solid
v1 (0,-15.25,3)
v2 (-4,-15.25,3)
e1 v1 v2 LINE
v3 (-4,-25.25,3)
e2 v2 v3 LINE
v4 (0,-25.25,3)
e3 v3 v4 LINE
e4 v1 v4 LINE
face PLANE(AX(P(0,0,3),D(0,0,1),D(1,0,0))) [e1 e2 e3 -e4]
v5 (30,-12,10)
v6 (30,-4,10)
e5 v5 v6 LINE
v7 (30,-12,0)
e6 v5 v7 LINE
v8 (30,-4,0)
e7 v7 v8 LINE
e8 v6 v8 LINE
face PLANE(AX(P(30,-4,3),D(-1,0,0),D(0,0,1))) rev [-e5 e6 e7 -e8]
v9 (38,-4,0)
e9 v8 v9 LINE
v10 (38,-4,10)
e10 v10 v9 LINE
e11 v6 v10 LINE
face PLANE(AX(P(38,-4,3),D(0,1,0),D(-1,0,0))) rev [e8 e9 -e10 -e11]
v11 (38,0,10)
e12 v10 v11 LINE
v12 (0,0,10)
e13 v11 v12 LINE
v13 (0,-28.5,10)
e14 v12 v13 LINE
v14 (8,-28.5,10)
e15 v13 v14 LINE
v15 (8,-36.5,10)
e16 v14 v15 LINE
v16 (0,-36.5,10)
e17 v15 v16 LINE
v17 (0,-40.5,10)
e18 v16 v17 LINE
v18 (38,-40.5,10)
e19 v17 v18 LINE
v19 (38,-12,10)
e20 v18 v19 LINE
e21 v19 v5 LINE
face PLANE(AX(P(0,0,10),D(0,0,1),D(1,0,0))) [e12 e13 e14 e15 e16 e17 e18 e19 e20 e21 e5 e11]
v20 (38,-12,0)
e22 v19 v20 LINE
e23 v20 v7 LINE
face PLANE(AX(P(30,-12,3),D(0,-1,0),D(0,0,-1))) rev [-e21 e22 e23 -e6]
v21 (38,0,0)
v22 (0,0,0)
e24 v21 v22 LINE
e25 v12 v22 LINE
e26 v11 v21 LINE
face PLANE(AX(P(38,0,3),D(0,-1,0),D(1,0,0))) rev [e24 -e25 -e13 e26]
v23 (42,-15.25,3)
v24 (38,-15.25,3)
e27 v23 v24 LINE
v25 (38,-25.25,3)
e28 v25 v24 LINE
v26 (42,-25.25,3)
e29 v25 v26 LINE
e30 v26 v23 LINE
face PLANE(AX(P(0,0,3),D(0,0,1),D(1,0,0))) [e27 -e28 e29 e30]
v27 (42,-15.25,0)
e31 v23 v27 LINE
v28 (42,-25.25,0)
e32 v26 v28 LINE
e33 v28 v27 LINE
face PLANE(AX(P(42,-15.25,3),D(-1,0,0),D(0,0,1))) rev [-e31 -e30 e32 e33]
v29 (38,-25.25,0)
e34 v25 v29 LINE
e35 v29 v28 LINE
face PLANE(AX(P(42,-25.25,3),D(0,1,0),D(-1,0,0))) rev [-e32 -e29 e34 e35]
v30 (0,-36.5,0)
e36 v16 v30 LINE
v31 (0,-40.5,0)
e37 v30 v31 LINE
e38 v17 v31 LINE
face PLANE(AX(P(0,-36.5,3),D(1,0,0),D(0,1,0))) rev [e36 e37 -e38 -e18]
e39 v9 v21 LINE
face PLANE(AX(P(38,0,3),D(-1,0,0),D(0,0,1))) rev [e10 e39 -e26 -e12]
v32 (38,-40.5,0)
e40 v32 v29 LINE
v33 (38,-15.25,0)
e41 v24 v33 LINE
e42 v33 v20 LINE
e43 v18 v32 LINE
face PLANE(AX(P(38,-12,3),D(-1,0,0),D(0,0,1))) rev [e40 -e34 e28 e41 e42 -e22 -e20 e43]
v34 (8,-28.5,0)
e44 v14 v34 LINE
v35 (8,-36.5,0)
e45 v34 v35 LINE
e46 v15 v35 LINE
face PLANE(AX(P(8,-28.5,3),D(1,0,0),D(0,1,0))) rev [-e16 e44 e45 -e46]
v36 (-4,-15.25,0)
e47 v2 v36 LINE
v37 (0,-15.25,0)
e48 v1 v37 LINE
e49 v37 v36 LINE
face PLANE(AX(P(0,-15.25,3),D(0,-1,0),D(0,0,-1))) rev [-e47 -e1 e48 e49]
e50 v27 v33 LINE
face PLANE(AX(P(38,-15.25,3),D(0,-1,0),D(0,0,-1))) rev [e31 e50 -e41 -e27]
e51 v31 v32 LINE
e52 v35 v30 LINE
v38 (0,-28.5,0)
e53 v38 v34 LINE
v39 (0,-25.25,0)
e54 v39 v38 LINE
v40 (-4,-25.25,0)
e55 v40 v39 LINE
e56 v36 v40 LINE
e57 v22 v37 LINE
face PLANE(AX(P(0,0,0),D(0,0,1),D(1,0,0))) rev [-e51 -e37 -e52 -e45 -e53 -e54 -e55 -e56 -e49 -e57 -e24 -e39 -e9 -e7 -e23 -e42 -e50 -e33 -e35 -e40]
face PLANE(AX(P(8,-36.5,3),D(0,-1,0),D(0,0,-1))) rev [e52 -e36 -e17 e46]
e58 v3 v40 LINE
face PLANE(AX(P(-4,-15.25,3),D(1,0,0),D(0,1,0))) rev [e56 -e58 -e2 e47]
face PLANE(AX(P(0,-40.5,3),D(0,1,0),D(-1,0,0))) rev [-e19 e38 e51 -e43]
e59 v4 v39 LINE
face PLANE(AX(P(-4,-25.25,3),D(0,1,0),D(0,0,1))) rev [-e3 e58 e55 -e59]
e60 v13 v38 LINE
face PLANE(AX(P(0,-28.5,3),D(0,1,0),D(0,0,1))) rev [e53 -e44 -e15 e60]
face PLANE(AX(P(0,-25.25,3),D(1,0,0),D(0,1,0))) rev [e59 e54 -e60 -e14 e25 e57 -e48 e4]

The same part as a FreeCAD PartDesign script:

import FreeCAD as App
import Part
import Sketcher

V = App.Vector

doc = App.newDocument("Part")
body = doc.addObject("PartDesign::Body", "Body")

# Sketch on XY plane
sketch1 = body.newObject("Sketcher::SketchObject", "Sketch")
sketch1.AttachmentSupport = (doc.getObject("XY_Plane"), [""])
sketch1.MapMode = "FlatFace"
sketch1.addGeometry([
    Part.LineSegment(V(0, 0, 0), V(0, -15.2, 0)),  # 0
    Part.LineSegment(V(0, -15.2, 0), V(-4, -15.2, 0)),  # 1
    Part.LineSegment(V(-4, -15.2, 0), V(-4, -25.2, 0)),  # 2
    Part.LineSegment(V(-4, -25.2, 0), V(0, -25.2, 0)),  # 3
    Part.LineSegment(V(0, -25.2, 0), V(0, -28.5, 0)),  # 4
    Part.LineSegment(V(0, -28.5, 0), V(8, -28.5, 0)),  # 5
    Part.LineSegment(V(8, -28.5, 0), V(8, -36.5, 0)),  # 6
    Part.LineSegment(V(8, -36.5, 0), V(0, -36.5, 0)),  # 7
    Part.LineSegment(V(0, -36.5, 0), V(0, -40.5, 0)),  # 8
    Part.LineSegment(V(0, -40.5, 0), V(38, -40.5, 0)),  # 9
    Part.LineSegment(V(38, -40.5, 0), V(38, -25.2, 0)),  # 10
    Part.LineSegment(V(38, -25.2, 0), V(42, -25.2, 0)),  # 11
    Part.LineSegment(V(42, -25.2, 0), V(42, -15.2, 0)),  # 12
    Part.LineSegment(V(42, -15.2, 0), V(38, -15.2, 0)),  # 13
    Part.LineSegment(V(38, -15.2, 0), V(38, -12, 0)),  # 14
    Part.LineSegment(V(38, -12, 0), V(30, -12, 0)),  # 15
    Part.LineSegment(V(30, -12, 0), V(30, -4, 0)),  # 16
    Part.LineSegment(V(30, -4, 0), V(38, -4, 0)),  # 17
    Part.LineSegment(V(38, -4, 0), V(38, 0, 0)),  # 18
    Part.LineSegment(V(38, 0, 0), V(0, 0, 0)),  # 19
], False)
sketch1.addConstraint([
    Sketcher.Constraint("Coincident", 0, 2, 1, 1),
    Sketcher.Constraint("Coincident", 1, 2, 2, 1),
    Sketcher.Constraint("Coincident", 2, 2, 3, 1),
    Sketcher.Constraint("Coincident", 3, 2, 4, 1),
    Sketcher.Constraint("Coincident", 4, 2, 5, 1),
    Sketcher.Constraint("Coincident", 5, 2, 6, 1),
    Sketcher.Constraint("Coincident", 6, 2, 7, 1),
    Sketcher.Constraint("Coincident", 7, 2, 8, 1),
    Sketcher.Constraint("Coincident", 8, 2, 9, 1),
    Sketcher.Constraint("Coincident", 9, 2, 10, 1),
    Sketcher.Constraint("Coincident", 10, 2, 11, 1),
    Sketcher.Constraint("Coincident", 11, 2, 12, 1),
    Sketcher.Constraint("Coincident", 12, 2, 13, 1),
    Sketcher.Constraint("Coincident", 13, 2, 14, 1),
    Sketcher.Constraint("Coincident", 14, 2, 15, 1),
    Sketcher.Constraint("Coincident", 15, 2, 16, 1),
    Sketcher.Constraint("Coincident", 16, 2, 17, 1),
    Sketcher.Constraint("Coincident", 17, 2, 18, 1),
    Sketcher.Constraint("Coincident", 18, 2, 19, 1),
    Sketcher.Constraint("Coincident", 19, 2, 0, 1),
    Sketcher.Constraint("Vertical", 0),
    Sketcher.Constraint("Horizontal", 1),
    Sketcher.Constraint("Vertical", 2),
    Sketcher.Constraint("Horizontal", 3),
    Sketcher.Constraint("Vertical", 4),
    Sketcher.Constraint("Horizontal", 5),
    Sketcher.Constraint("Vertical", 6),
    Sketcher.Constraint("Horizontal", 7),
    Sketcher.Constraint("Vertical", 8),
    Sketcher.Constraint("Horizontal", 9),
    Sketcher.Constraint("Vertical", 10),
    Sketcher.Constraint("Horizontal", 11),
    Sketcher.Constraint("Vertical", 12),
    Sketcher.Constraint("Horizontal", 13),
    Sketcher.Constraint("Vertical", 14),
    Sketcher.Constraint("Horizontal", 15),
    Sketcher.Constraint("Vertical", 16),
    Sketcher.Constraint("Horizontal", 17),
    Sketcher.Constraint("Vertical", 18),
    Sketcher.Constraint("Horizontal", 19),
    Sketcher.Constraint("Coincident", 19, 2, -1, 1),
    Sketcher.Constraint("PointOnObject", 3, 2, -2),
    Sketcher.Constraint("PointOnObject", 7, 2, -2),
    Sketcher.Constraint("Horizontal", 3, 2, 10, 2),
    Sketcher.Constraint("Horizontal", 1, 2, 12, 2),
    Sketcher.Constraint("Vertical", 10, 2, 13, 2),
    Sketcher.Constraint("Vertical", 14, 2, 17, 2),
    Sketcher.Constraint("Equal", 3, 11),
    Sketcher.Constraint("Equal", 7, 15),
    Sketcher.Constraint("Equal", 17, 6),
    Sketcher.Constraint("Equal", 13, 8),
    Sketcher.Constraint("Equal", 0, 10),
    Sketcher.Constraint("Equal", 4, 14),
    Sketcher.Constraint("Equal", 6, 16),
    Sketcher.Constraint("DistanceX", 1, 2, 1, 1, 4.0),
    Sketcher.Constraint("DistanceX", 5, 1, 5, 2, 8.0),
    Sketcher.Constraint("DistanceX", 9, 1, 9, 2, 38.0),
    Sketcher.Constraint("DistanceY", 2, 2, 2, 1, 10.0),
    Sketcher.Constraint("DistanceY", 0, 2, 0, 1, 15.25),
])
pad1 = body.newObject("PartDesign::Pad", "Pad")
pad1.Profile = sketch1
pad1.Length = 3

# Sketch on XY plane
sketch2 = body.newObject("Sketcher::SketchObject", "Sketch001")
sketch2.AttachmentSupport = (doc.getObject("XY_Plane"), [""])
sketch2.MapMode = "FlatFace"
sketch2.AttachmentOffset = App.Placement(V(0, 0, 3), App.Rotation())
sketch2.addGeometry([
    Part.LineSegment(V(0, 0, 0), V(0, -28.5, 0)),  # 0
    Part.LineSegment(V(0, -28.5, 0), V(8, -28.5, 0)),  # 1
    Part.LineSegment(V(8, -28.5, 0), V(8, -36.5, 0)),  # 2
    Part.LineSegment(V(8, -36.5, 0), V(0, -36.5, 0)),  # 3
    Part.LineSegment(V(0, -36.5, 0), V(0, -40.5, 0)),  # 4
    Part.LineSegment(V(0, -40.5, 0), V(38, -40.5, 0)),  # 5
    Part.LineSegment(V(38, -40.5, 0), V(38, -12, 0)),  # 6
    Part.LineSegment(V(38, -12, 0), V(30, -12, 0)),  # 7
    Part.LineSegment(V(30, -12, 0), V(30, -4, 0)),  # 8
    Part.LineSegment(V(30, -4, 0), V(38, -4, 0)),  # 9
    Part.LineSegment(V(38, -4, 0), V(38, 0, 0)),  # 10
    Part.LineSegment(V(38, 0, 0), V(0, 0, 0)),  # 11
], False)
sketch2.addConstraint([
    Sketcher.Constraint("Coincident", 0, 2, 1, 1),
    Sketcher.Constraint("Coincident", 1, 2, 2, 1),
    Sketcher.Constraint("Coincident", 2, 2, 3, 1),
    Sketcher.Constraint("Coincident", 3, 2, 4, 1),
    Sketcher.Constraint("Coincident", 4, 2, 5, 1),
    Sketcher.Constraint("Coincident", 5, 2, 6, 1),
    Sketcher.Constraint("Coincident", 6, 2, 7, 1),
    Sketcher.Constraint("Coincident", 7, 2, 8, 1),
    Sketcher.Constraint("Coincident", 8, 2, 9, 1),
    Sketcher.Constraint("Coincident", 9, 2, 10, 1),
    Sketcher.Constraint("Coincident", 10, 2, 11, 1),
    Sketcher.Constraint("Coincident", 11, 2, 0, 1),
    Sketcher.Constraint("Vertical", 0),
    Sketcher.Constraint("Horizontal", 1),
    Sketcher.Constraint("Vertical", 2),
    Sketcher.Constraint("Horizontal", 3),
    Sketcher.Constraint("Vertical", 4),
    Sketcher.Constraint("Horizontal", 5),
    Sketcher.Constraint("Vertical", 6),
    Sketcher.Constraint("Horizontal", 7),
    Sketcher.Constraint("Vertical", 8),
    Sketcher.Constraint("Horizontal", 9),
    Sketcher.Constraint("Vertical", 10),
    Sketcher.Constraint("Horizontal", 11),
    Sketcher.Constraint("Coincident", 11, 2, -1, 1),
    Sketcher.Constraint("PointOnObject", 3, 2, -2),
    Sketcher.Constraint("Vertical", 6, 2, 9, 2),
    Sketcher.Constraint("Equal", 3, 7),
    Sketcher.Constraint("Equal", 9, 2),
    Sketcher.Constraint("Equal", 0, 6),
    Sketcher.Constraint("Equal", 2, 8),
    Sketcher.Constraint("DistanceX", 1, 1, 1, 2, 8.0),
    Sketcher.Constraint("DistanceX", 5, 1, 5, 2, 38.0),
    Sketcher.Constraint("DistanceY", 4, 2, 4, 1, 4.0),
    Sketcher.Constraint("DistanceY", 0, 2, 0, 1, 28.5),
])
pad2 = body.newObject("PartDesign::Pad", "Pad001")
pad2.Profile = sketch2
pad2.Length = 7

doc.recompute()
